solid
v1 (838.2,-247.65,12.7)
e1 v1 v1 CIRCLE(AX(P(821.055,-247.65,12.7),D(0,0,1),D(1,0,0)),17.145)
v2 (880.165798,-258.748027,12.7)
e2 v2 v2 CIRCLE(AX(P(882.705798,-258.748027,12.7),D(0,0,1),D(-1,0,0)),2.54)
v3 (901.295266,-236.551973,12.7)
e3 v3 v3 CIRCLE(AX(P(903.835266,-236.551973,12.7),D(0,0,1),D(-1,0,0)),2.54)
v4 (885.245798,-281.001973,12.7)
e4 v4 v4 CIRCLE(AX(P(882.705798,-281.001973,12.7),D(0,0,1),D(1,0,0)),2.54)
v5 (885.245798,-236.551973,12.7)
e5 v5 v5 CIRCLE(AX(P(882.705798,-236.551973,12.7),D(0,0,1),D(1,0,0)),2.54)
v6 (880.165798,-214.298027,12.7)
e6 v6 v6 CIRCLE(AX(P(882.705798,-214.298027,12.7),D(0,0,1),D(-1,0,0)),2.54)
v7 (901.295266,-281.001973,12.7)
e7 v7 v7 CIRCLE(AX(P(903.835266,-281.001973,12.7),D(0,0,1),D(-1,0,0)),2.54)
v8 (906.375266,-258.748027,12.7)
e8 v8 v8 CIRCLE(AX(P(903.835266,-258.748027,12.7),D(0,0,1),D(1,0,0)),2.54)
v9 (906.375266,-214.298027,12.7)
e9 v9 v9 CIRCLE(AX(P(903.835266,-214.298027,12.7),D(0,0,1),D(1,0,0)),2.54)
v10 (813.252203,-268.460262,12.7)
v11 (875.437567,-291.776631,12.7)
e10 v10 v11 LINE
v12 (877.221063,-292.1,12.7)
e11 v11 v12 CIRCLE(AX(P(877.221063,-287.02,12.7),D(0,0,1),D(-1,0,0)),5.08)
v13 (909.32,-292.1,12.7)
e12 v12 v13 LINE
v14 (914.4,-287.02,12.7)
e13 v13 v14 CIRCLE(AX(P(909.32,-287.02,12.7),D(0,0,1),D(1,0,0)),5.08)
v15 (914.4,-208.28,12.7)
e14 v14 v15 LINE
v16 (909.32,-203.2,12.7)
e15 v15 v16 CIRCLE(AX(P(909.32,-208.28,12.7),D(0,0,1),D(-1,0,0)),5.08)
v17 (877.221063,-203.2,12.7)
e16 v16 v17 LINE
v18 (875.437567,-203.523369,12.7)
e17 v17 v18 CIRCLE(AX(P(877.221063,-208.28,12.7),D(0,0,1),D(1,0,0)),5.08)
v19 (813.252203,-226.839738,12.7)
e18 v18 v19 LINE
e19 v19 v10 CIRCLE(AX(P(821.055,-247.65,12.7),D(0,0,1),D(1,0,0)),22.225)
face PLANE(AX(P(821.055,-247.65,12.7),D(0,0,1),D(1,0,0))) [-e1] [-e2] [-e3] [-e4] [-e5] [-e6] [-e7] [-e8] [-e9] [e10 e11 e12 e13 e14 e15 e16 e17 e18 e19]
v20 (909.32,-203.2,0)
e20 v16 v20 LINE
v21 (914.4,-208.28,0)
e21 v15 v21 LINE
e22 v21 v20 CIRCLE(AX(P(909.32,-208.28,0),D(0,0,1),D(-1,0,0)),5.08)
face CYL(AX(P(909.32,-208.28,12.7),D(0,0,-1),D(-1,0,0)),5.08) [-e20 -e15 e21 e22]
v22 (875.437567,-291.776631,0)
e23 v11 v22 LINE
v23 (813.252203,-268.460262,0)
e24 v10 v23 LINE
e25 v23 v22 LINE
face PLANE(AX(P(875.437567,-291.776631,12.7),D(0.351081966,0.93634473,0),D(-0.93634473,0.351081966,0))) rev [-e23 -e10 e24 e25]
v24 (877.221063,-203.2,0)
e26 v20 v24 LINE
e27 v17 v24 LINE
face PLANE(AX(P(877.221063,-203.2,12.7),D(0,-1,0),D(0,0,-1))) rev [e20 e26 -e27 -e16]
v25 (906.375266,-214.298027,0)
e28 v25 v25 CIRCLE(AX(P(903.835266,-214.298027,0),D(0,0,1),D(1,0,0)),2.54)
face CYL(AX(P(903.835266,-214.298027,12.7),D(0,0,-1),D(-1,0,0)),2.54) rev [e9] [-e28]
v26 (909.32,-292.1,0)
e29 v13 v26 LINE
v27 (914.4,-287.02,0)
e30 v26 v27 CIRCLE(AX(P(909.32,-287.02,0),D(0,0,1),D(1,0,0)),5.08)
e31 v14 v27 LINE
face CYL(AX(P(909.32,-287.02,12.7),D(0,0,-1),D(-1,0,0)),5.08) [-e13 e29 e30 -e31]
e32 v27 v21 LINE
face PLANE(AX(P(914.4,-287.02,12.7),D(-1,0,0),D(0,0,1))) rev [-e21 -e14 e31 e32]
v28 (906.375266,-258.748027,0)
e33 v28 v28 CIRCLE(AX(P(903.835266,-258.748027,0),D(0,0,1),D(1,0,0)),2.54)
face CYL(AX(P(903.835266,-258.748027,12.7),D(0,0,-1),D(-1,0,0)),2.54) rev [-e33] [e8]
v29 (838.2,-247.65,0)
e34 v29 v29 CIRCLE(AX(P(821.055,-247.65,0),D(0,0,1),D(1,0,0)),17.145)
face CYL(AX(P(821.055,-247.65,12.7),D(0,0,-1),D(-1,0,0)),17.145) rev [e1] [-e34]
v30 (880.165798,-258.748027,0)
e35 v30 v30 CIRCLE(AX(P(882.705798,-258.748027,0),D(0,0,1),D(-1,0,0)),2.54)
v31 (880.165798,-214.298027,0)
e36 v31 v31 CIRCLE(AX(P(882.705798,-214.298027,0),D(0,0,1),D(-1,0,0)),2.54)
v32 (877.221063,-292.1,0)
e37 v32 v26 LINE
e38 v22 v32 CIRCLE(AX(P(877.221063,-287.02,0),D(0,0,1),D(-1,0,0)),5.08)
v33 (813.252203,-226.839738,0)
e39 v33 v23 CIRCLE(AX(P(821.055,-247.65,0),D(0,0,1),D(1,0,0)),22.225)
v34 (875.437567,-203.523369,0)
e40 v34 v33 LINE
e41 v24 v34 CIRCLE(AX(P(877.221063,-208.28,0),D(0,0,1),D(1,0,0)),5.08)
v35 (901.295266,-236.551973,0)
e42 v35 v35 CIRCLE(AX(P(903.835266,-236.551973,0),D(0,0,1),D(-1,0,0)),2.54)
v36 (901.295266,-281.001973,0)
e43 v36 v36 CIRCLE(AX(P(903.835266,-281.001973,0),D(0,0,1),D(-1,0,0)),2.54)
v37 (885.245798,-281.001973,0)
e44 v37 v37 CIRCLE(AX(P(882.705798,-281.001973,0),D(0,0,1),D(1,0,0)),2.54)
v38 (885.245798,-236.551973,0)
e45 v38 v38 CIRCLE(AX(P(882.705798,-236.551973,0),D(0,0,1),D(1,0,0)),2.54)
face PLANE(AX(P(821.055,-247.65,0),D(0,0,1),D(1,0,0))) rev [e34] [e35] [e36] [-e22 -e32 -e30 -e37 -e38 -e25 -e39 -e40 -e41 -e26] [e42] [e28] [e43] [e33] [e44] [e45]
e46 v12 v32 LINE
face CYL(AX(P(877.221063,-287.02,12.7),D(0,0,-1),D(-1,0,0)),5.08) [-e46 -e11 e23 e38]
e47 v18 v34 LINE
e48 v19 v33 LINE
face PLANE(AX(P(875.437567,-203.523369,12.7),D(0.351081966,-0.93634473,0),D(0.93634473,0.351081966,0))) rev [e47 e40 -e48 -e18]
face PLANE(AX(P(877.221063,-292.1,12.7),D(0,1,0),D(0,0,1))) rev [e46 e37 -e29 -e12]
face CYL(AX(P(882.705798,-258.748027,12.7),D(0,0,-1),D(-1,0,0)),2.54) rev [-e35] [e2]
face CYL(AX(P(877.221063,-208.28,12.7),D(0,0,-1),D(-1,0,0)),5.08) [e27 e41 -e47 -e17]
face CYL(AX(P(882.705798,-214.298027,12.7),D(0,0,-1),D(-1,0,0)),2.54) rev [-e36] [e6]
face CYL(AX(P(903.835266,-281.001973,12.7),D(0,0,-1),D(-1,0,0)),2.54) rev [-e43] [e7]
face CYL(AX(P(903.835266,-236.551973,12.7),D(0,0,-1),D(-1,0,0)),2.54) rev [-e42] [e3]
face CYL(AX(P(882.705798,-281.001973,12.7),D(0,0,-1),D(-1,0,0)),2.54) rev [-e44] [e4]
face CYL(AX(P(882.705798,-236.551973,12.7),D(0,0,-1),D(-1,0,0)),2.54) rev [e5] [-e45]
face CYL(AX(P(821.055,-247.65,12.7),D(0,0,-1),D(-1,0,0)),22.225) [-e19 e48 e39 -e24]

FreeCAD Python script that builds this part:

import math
import FreeCAD as App
import Part
import Sketcher

V = App.Vector
Q = App.Units.Quantity

doc = App.newDocument("Part")
params = doc.addObject("Spreadsheet::Sheet", "Params")
for row, (alias, value) in enumerate([
    ("sketch1_diameter", "0.2 in"),
    ("sketch1_radius", "0.2 in"),
    ("sketch1_diameter2", "1.35 in"),
    ("sketch1_height", "3.1 in"),
    ("sketch1_radius2", "0.875 in"),
    ("pad1_length", "0.5 in"),
], start=1):
    params.set(f"A{row}", alias)
    params.set(f"B{row}", "=" + value)
    params.setAlias(f"B{row}", alias)

body = doc.addObject("PartDesign::Body", "Body")

# Sketch on XY plane
sketch1 = body.newObject("Sketcher::SketchObject", "Sketch")
sketch1.AttachmentSupport = (doc.getObject("XY_Plane"), [""])
sketch1.MapMode = "FlatFace"
sketch1.addGeometry([
    Part.LineSegment(V(877.2, -292.1, 0), V(909.3, -292.1, 0)),  # 0
    Part.ArcOfCircle(Part.Circle(V(909.3, -287, 0), V(0, 0, 1), 5.1), math.radians(-90), math.radians(0)),  # 1
    Part.LineSegment(V(914.4, -287, 0), V(914.4, -208.3, 0)),  # 2
    Part.ArcOfCircle(Part.Circle(V(909.3, -208.3, 0), V(0, 0, 1), 5.1), math.radians(0), math.radians(90)),  # 3
    Part.LineSegment(V(909.3, -203.2, 0), V(877.2, -203.2, 0)),  # 4
    Part.ArcOfCircle(Part.Circle(V(877.2, -208.3, 0), V(0, 0, 1), 5.1), math.radians(90), math.radians(111)),  # 5
    Part.LineSegment(V(875.4, -203.5, 0), V(813.3, -226.8, 0)),  # 6
    Part.ArcOfCircle(Part.Circle(V(821.1, -247.7, 0), V(0, 0, 1), 22.2), math.radians(111), math.radians(249)),  # 7
    Part.LineSegment(V(813.3, -268.5, 0), V(875.4, -291.8, 0)),  # 8
    Part.ArcOfCircle(Part.Circle(V(877.2, -287, 0), V(0, 0, 1), 5.1), math.radians(-111), math.radians(-90)),  # 9
    Part.Circle(V(821.1, -247.7, 0), V(0, 0, 1), 17.1),  # 10
    Part.Circle(V(882.7, -281, 0), V(0, 0, 1), 2.5),  # 11
    Part.Circle(V(903.8, -281, 0), V(0, 0, 1), 2.5),  # 12
    Part.Circle(V(882.7, -258.7, 0), V(0, 0, 1), 2.5),  # 13
    Part.Circle(V(903.8, -258.7, 0), V(0, 0, 1), 2.5),  # 14
    Part.Circle(V(882.7, -236.6, 0), V(0, 0, 1), 2.5),  # 15
    Part.Circle(V(903.8, -236.6, 0), V(0, 0, 1), 2.5),  # 16
    Part.Circle(V(882.7, -214.3, 0), V(0, 0, 1), 2.5),  # 17
    Part.Circle(V(903.8, -214.3, 0), V(0, 0, 1), 2.5),  # 18
], False)
sketch1.addConstraint([
    Sketcher.Constraint("Tangent", 0, 2, 1, 1),
    Sketcher.Constraint("Tangent", 1, 2, 2, 1),
    Sketcher.Constraint("Tangent", 2, 2, 3, 1),
    Sketcher.Constraint("Tangent", 3, 2, 4, 1),
    Sketcher.Constraint("Tangent", 4, 2, 5, 1),
    Sketcher.Constraint("Tangent", 5, 2, 6, 1),
    Sketcher.Constraint("Tangent", 6, 2, 7, 1),
    Sketcher.Constraint("Tangent", 7, 2, 8, 1),
    Sketcher.Constraint("Tangent", 8, 2, 9, 1),
    Sketcher.Constraint("Tangent", 9, 2, 0, 1),
    Sketcher.Constraint("Horizontal", 0),
    Sketcher.Constraint("Vertical", 2),
    Sketcher.Constraint("Horizontal", 4),
    Sketcher.Constraint("Coincident", 10, 3, 7, 3),
    Sketcher.Constraint("Equal", 1, 3),
    Sketcher.Constraint("Equal", 3, 5),
    Sketcher.Constraint("Equal", 5, 9),
    Sketcher.Constraint("Equal", 11, 12),
    Sketcher.Constraint("Equal", 12, 13),
    Sketcher.Constraint("Equal", 13, 14),
    Sketcher.Constraint("Equal", 14, 15),
    Sketcher.Constraint("Equal", 15, 16),
    Sketcher.Constraint("Equal", 16, 17),
    Sketcher.Constraint("Equal", 17, 18),
    Sketcher.Constraint("Horizontal", 11, 3, 12, 3),
    Sketcher.Constraint("Horizontal", 13, 3, 14, 3),
    Sketcher.Constraint("Horizontal", 15, 3, 16, 3),
    Sketcher.Constraint("Horizontal", 17, 3, 18, 3),
    Sketcher.Constraint("Vertical", 5, 3, 9, 3),
    Sketcher.Constraint("Vertical", 11, 3, 13, 3),
    Sketcher.Constraint("Vertical", 12, 3, 14, 3),
    Sketcher.Constraint("Vertical", 13, 3, 15, 3),
    Sketcher.Constraint("Vertical", 14, 3, 16, 3),
    Sketcher.Constraint("Vertical", 15, 3, 17, 3),
    Sketcher.Constraint("Vertical", 16, 3, 18, 3),
    Sketcher.Constraint("Vertical", 6, 2, 7, 2),
    Sketcher.Constraint("Diameter", 11, Q("0.2 in")),
    Sketcher.Constraint("Radius", 1, Q("0.2 in")),
    Sketcher.Constraint("Diameter", 10, Q("1.35 in")),
    Sketcher.Constraint("DistanceY", 2, 1, 2, 2, Q("3.1 in")),
    Sketcher.Constraint("DistanceX", -1, 1, 1, 2, Q("36 in")),
    Sketcher.Constraint("DistanceY", 3, 2, -1, 1, Q("8 in")),
    Sketcher.Constraint("Radius", 7, Q("0.875 in")),
    Sketcher.Constraint("DistanceY", 11, 3, 15, 3, Q("1.75 in")),
    Sketcher.Constraint("DistanceY", 13, 3, 17, 3, Q("1.75 in")),
    Sketcher.Constraint("DistanceX", -1, 1, 7, 3, Q("32.325 in")),
    Sketcher.Constraint("DistanceX", 5, 2, 18, 3, Q("28.397699 mm")),
    Sketcher.Constraint("DistanceX", 0, 1, 0, 2, Q("32.098937 mm")),
    Sketcher.Constraint("DistanceX", 11, 3, 12, 3, Q("21.129468 mm")),
    Sketcher.Constraint("DistanceY", 17, 3, 5, 2, Q("10.774658 mm")),
    Sketcher.Constraint("DistanceY", 8, 2, 11, 3, Q("10.774658 mm")),
])
sketch1.setExpression("Constraints[36]", "Params.sketch1_diameter")
sketch1.setExpression("Constraints[37]", "Params.sketch1_radius")
sketch1.setExpression("Constraints[38]", "Params.sketch1_diameter2")
sketch1.setExpression("Constraints[39]", "Params.sketch1_height")
sketch1.setExpression("Constraints[42]", "Params.sketch1_radius2")
pad1 = body.newObject("PartDesign::Pad", "Pad")
pad1.Profile = sketch1
pad1.setExpression("Length", "Params.pad1_length")

doc.recompute()
